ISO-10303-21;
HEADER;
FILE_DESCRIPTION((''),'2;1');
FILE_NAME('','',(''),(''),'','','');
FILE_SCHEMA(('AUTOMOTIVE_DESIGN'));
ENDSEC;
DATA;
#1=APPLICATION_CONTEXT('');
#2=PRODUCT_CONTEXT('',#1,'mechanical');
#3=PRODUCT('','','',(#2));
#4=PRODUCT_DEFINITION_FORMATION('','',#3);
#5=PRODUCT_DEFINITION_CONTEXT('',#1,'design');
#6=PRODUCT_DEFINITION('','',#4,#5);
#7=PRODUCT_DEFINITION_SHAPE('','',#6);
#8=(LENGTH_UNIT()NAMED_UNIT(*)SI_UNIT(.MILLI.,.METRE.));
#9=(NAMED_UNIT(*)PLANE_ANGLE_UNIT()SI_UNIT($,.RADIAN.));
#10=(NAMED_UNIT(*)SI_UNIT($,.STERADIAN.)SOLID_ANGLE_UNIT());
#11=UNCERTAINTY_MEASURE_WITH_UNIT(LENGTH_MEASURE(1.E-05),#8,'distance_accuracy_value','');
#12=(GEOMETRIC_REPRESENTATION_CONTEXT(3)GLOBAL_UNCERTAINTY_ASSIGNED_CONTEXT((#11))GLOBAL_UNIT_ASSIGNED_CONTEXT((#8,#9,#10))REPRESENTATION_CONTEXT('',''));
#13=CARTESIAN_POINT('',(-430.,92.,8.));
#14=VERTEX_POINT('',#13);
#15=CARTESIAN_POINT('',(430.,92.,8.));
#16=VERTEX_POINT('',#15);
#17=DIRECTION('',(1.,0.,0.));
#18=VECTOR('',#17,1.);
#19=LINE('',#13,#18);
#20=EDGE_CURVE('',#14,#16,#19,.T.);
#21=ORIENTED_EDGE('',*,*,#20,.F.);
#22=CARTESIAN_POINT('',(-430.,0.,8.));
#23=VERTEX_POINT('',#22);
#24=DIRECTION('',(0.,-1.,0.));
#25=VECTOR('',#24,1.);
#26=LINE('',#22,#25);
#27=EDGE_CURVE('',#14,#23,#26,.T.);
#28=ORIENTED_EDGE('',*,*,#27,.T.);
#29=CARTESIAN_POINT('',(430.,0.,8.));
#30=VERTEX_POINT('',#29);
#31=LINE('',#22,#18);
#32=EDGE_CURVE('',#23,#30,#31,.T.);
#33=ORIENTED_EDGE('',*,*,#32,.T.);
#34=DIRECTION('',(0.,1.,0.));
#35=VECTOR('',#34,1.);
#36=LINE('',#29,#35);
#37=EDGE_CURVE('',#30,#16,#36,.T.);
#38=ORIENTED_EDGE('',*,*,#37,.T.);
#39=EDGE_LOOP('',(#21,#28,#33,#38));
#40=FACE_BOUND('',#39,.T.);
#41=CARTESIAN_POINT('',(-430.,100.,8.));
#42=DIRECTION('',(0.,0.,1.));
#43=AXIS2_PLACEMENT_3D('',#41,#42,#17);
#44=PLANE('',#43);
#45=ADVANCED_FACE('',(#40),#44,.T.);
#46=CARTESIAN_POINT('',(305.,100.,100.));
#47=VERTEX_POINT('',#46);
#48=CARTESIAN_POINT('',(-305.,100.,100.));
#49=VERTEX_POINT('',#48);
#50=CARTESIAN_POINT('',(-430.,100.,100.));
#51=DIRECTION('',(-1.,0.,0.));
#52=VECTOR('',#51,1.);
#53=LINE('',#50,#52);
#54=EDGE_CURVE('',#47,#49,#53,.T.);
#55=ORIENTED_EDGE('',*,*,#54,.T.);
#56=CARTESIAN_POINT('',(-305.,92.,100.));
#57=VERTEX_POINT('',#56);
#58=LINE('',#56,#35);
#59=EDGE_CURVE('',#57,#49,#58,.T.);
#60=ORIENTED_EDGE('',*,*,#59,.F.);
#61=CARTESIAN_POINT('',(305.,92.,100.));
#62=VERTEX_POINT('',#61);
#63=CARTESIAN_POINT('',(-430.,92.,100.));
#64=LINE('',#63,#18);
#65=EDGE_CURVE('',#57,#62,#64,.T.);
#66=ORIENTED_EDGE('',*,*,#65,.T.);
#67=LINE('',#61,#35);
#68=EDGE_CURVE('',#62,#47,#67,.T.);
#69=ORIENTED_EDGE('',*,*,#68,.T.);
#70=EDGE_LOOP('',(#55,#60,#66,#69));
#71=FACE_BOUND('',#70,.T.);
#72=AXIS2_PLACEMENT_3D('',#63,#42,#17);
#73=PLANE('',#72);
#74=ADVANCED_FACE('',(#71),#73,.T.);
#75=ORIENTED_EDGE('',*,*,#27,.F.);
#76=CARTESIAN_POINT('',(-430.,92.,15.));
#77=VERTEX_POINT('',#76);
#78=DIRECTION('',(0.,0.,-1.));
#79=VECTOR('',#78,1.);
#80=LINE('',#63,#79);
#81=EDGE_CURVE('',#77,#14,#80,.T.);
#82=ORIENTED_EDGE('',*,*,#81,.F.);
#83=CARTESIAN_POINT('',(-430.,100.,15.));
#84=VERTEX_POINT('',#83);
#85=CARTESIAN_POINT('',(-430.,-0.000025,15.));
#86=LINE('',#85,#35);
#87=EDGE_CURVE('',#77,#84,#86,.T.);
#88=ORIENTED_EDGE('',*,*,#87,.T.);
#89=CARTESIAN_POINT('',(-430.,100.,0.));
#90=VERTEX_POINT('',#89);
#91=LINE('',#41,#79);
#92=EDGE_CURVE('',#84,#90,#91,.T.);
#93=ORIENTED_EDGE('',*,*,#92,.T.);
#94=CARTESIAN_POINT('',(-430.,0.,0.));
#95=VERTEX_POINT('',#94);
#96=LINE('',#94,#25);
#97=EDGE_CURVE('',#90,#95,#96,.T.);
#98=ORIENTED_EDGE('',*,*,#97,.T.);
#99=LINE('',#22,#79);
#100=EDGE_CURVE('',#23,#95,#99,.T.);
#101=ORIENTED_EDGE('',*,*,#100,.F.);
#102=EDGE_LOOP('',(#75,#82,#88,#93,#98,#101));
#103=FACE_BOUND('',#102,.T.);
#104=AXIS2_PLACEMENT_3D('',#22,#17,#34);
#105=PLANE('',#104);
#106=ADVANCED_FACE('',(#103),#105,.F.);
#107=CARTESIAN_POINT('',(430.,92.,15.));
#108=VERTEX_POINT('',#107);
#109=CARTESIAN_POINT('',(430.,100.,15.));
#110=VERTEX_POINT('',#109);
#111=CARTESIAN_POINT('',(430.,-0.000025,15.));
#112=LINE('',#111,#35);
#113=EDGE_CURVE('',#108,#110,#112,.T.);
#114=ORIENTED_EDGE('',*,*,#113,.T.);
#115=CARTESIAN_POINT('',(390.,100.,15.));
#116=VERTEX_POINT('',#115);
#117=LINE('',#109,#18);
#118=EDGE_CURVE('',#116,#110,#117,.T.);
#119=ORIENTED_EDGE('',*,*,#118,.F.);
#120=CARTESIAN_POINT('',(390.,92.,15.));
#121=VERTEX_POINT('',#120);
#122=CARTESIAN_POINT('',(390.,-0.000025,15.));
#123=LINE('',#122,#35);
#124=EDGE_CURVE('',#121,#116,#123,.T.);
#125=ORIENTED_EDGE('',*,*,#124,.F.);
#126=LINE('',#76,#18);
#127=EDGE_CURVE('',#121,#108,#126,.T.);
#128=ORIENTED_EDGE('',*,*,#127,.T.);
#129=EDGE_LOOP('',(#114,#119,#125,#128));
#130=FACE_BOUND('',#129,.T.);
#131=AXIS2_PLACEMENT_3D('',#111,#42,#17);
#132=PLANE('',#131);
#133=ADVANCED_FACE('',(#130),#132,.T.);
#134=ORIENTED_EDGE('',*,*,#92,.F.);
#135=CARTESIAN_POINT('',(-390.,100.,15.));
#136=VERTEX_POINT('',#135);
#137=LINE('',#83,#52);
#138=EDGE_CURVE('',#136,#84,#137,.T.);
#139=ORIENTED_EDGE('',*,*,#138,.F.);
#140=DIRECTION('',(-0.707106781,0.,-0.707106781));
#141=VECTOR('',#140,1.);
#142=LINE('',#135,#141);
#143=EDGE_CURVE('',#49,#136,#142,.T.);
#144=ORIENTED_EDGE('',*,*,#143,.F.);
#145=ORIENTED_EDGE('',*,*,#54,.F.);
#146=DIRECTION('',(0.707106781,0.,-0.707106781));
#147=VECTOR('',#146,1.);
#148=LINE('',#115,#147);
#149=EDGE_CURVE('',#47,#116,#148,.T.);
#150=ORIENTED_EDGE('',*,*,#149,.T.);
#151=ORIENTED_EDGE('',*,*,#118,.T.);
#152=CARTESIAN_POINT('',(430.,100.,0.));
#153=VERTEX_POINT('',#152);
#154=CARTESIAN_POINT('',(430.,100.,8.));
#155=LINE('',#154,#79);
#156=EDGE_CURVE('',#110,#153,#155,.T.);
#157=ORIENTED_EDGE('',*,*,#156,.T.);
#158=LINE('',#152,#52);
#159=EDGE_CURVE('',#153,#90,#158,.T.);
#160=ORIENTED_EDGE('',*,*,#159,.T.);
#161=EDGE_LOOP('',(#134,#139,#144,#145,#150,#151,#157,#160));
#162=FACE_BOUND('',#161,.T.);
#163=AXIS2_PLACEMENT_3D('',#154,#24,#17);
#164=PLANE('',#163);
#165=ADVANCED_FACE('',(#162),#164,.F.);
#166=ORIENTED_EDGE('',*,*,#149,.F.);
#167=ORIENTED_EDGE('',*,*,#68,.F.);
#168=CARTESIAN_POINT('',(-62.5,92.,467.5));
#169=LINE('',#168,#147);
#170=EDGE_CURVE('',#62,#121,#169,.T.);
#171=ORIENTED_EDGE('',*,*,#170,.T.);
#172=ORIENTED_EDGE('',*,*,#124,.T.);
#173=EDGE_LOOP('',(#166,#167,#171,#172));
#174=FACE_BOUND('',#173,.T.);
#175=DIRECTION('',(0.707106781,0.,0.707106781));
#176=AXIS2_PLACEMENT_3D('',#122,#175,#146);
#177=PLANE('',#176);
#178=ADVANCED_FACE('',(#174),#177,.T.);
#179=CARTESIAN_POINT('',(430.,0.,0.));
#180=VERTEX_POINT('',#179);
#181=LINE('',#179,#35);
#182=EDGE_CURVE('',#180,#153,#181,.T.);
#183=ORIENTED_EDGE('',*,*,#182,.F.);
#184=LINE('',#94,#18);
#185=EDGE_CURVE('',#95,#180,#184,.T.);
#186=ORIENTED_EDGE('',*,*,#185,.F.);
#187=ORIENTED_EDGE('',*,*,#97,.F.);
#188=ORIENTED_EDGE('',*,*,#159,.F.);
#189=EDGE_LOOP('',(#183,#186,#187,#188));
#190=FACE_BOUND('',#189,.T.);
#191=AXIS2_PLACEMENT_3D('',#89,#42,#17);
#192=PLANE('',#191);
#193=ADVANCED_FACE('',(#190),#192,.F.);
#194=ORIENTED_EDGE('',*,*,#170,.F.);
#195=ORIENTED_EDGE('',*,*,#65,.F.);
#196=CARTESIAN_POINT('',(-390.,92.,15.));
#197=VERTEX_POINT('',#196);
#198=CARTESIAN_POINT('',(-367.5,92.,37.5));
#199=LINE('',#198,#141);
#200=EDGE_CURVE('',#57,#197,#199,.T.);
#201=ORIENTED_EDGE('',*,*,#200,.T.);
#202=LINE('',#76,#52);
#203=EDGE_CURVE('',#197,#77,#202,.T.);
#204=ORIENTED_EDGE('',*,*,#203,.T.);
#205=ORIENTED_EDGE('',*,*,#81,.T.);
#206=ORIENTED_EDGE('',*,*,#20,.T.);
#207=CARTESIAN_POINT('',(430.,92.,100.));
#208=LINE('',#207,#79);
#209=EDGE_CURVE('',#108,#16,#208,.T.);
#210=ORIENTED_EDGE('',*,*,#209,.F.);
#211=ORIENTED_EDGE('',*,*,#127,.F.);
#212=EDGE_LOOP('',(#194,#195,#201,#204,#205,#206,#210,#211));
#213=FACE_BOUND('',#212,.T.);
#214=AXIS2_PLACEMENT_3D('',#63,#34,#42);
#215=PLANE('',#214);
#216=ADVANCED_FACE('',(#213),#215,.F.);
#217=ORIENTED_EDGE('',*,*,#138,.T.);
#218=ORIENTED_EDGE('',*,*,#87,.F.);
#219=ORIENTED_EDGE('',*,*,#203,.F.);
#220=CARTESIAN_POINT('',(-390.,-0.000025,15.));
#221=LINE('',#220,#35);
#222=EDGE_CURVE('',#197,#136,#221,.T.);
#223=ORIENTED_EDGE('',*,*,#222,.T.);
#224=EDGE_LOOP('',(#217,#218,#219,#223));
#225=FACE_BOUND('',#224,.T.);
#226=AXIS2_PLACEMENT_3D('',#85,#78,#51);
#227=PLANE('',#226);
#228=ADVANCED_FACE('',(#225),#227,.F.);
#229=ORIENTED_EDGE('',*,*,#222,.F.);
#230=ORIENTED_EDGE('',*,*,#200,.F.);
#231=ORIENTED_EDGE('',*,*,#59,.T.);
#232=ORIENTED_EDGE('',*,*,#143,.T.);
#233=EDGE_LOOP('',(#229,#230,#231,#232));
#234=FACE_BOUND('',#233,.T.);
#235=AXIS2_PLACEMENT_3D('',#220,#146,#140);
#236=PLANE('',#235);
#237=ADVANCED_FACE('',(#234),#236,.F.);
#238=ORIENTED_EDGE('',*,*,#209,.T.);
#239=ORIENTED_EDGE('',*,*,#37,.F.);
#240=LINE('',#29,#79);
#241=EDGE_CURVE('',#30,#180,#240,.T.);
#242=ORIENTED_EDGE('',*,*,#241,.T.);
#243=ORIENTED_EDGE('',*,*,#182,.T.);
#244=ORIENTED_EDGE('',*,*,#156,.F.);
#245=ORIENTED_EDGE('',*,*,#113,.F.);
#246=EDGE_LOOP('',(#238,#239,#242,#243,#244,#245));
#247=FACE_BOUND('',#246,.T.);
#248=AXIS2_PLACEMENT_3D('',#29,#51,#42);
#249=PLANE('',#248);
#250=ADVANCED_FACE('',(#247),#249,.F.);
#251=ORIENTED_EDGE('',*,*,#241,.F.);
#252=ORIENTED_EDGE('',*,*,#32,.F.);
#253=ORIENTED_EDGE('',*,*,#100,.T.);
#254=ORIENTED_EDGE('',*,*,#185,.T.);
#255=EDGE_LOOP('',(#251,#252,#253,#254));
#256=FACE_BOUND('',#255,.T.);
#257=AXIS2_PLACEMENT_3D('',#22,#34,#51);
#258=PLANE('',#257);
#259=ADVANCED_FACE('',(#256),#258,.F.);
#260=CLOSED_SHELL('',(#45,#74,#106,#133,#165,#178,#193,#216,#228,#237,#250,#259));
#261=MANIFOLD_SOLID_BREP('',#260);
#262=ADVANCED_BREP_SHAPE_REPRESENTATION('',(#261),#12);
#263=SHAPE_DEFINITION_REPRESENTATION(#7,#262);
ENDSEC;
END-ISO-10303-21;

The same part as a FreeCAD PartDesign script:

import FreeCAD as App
import Part
import Sketcher
from FreeCAD import Vector

doc = App.newDocument("Part")
body = doc.addObject("PartDesign::Body", "Body")

# Sketch on XY plane
sketch1 = doc.addObject("Sketcher::SketchObject", "Sketch")
body.addObject(sketch1)
sketch1.AttachmentSupport = (doc.XY_Plane, [""])
sketch1.MapMode = "FlatFace"
sketch1.addGeometry(Part.LineSegment(Vector(-430, 100, 0), Vector(-430, 0, 0)), False)
sketch1.addGeometry(Part.LineSegment(Vector(-430, 0, 0), Vector(430, 0, 0)), False)
sketch1.addGeometry(Part.LineSegment(Vector(430, 0, 0), Vector(430, 100, 0)), False)
sketch1.addGeometry(Part.LineSegment(Vector(430, 100, 0), Vector(-430, 100, 0)), False)
sketch1.addConstraint(Sketcher.Constraint("Coincident", 0, 2, 1, 1))
sketch1.addConstraint(Sketcher.Constraint("Coincident", 1, 2, 2, 1))
sketch1.addConstraint(Sketcher.Constraint("Coincident", 2, 2, 3, 1))
sketch1.addConstraint(Sketcher.Constraint("Coincident", 3, 2, 0, 1))
sketch1.addConstraint(Sketcher.Constraint("Vertical", 0))
sketch1.addConstraint(Sketcher.Constraint("Horizontal", 1))
sketch1.addConstraint(Sketcher.Constraint("Vertical", 2))
sketch1.addConstraint(Sketcher.Constraint("Horizontal", 3))
sketch1.addConstraint(Sketcher.Constraint("Symmetric", 0, 2, 1, 2, -1, 1))
sketch1.addConstraint(Sketcher.Constraint("DistanceX", 1, 1, 1, 2, 860.0))
sketch1.addConstraint(Sketcher.Constraint("DistanceY", 0, 2, 0, 1, 100.0))
pad1 = doc.addObject("PartDesign::Pad", "Pad")
body.addObject(pad1)
pad1.Profile = sketch1
pad1.Length = 8

# Sketch on XY plane
sketch2 = doc.addObject("Sketcher::SketchObject", "Sketch001")
body.addObject(sketch2)
sketch2.AttachmentSupport = (doc.XY_Plane, [""])
sketch2.MapMode = "FlatFace"
sketch2.AttachmentOffset = App.Placement(Vector(0, 0, 8), App.Rotation())
sketch2.addGeometry(Part.LineSegment(Vector(-430, 100, 0), Vector(-430, 92, 0)), False)
sketch2.addGeometry(Part.LineSegment(Vector(-430, 92, 0), Vector(430, 92, 0)), False)
sketch2.addGeometry(Part.LineSegment(Vector(430, 92, 0), Vector(430, 100, 0)), False)
sketch2.addGeometry(Part.LineSegment(Vector(430, 100, 0), Vector(-430, 100, 0)), False)
sketch2.addConstraint(Sketcher.Constraint("Coincident", 0, 2, 1, 1))
sketch2.addConstraint(Sketcher.Constraint("Coincident", 1, 2, 2, 1))
sketch2.addConstraint(Sketcher.Constraint("Coincident", 2, 2, 3, 1))
sketch2.addConstraint(Sketcher.Constraint("Coincident", 3, 2, 0, 1))
sketch2.addConstraint(Sketcher.Constraint("Vertical", 0))
sketch2.addConstraint(Sketcher.Constraint("Horizontal", 1))
sketch2.addConstraint(Sketcher.Constraint("Vertical", 2))
sketch2.addConstraint(Sketcher.Constraint("Horizontal", 3))
sketch2.addConstraint(Sketcher.Constraint("DistanceX", 1, 1, 1, 2, 860.0))
sketch2.addConstraint(Sketcher.Constraint("DistanceY", 0, 2, 0, 1, 8.0))
sketch2.addConstraint(Sketcher.Constraint("DistanceX", 0, 2, -1, 1, 430.0))
sketch2.addConstraint(Sketcher.Constraint("DistanceY", -1, 1, 0, 2, 92.0))
pad2 = doc.addObject("PartDesign::Pad", "Pad001")
body.addObject(pad2)
pad2.Profile = sketch2
pad2.Length = 92

# Sketch on XZ plane
sketch3 = doc.addObject("Sketcher::SketchObject", "Sketch002")
body.addObject(sketch3)
sketch3.AttachmentSupport = (doc.XZ_Plane, [""])
sketch3.MapMode = "FlatFace"
sketch3.AttachmentOffset = App.Placement(Vector(0, 0, -100), App.Rotation())
sketch3.addGeometry(Part.LineSegment(Vector(-390, 15, 0), Vector(-430, 15, 0)), False)
sketch3.addGeometry(Part.LineSegment(Vector(-430, 15, 0), Vector(-430, 100, 0)), False)
sketch3.addGeometry(Part.LineSegment(Vector(-430, 100, 0), Vector(-305, 100, 0)), False)
sketch3.addGeometry(Part.LineSegment(Vector(-305, 100, 0), Vector(-390, 15, 0)), False)
sketch3.addConstraint(Sketcher.Constraint("Coincident", 0, 2, 1, 1))
sketch3.addConstraint(Sketcher.Constraint("Coincident", 1, 2, 2, 1))
sketch3.addConstraint(Sketcher.Constraint("Coincident", 2, 2, 3, 1))
sketch3.addConstraint(Sketcher.Constraint("Coincident", 3, 2, 0, 1))
sketch3.addConstraint(Sketcher.Constraint("Horizontal", 0))
sketch3.addConstraint(Sketcher.Constraint("Vertical", 1))
sketch3.addConstraint(Sketcher.Constraint("Horizontal", 2))
sketch3.addConstraint(Sketcher.Constraint("DistanceX", 0, 2, 0, 1, 40.0))
sketch3.addConstraint(Sketcher.Constraint("DistanceX", 2, 1, 2, 2, 125.0))
sketch3.addConstraint(Sketcher.Constraint("DistanceY", 1, 1, 1, 2, 85.0))
sketch3.addConstraint(Sketcher.Constraint("DistanceX", 0, 2, -1, 1, 430.0))
sketch3.addConstraint(Sketcher.Constraint("DistanceY", -1, 1, 0, 2, 15.0))
pocket1 = doc.addObject("PartDesign::Pocket", "Pocket")
body.addObject(pocket1)
pocket1.Profile = sketch3
pocket1.Type = "ThroughAll"
pocket1.Reversed = True
doc.recompute()

mirrored = doc.addObject("PartDesign::Mirrored", "Mirrored")
body.addObject(mirrored)
mirrored.Originals = [pocket1]
mirrored.MirrorPlane = (doc.YZ_Plane, [""])
body.Tip = mirrored

doc.recompute()
